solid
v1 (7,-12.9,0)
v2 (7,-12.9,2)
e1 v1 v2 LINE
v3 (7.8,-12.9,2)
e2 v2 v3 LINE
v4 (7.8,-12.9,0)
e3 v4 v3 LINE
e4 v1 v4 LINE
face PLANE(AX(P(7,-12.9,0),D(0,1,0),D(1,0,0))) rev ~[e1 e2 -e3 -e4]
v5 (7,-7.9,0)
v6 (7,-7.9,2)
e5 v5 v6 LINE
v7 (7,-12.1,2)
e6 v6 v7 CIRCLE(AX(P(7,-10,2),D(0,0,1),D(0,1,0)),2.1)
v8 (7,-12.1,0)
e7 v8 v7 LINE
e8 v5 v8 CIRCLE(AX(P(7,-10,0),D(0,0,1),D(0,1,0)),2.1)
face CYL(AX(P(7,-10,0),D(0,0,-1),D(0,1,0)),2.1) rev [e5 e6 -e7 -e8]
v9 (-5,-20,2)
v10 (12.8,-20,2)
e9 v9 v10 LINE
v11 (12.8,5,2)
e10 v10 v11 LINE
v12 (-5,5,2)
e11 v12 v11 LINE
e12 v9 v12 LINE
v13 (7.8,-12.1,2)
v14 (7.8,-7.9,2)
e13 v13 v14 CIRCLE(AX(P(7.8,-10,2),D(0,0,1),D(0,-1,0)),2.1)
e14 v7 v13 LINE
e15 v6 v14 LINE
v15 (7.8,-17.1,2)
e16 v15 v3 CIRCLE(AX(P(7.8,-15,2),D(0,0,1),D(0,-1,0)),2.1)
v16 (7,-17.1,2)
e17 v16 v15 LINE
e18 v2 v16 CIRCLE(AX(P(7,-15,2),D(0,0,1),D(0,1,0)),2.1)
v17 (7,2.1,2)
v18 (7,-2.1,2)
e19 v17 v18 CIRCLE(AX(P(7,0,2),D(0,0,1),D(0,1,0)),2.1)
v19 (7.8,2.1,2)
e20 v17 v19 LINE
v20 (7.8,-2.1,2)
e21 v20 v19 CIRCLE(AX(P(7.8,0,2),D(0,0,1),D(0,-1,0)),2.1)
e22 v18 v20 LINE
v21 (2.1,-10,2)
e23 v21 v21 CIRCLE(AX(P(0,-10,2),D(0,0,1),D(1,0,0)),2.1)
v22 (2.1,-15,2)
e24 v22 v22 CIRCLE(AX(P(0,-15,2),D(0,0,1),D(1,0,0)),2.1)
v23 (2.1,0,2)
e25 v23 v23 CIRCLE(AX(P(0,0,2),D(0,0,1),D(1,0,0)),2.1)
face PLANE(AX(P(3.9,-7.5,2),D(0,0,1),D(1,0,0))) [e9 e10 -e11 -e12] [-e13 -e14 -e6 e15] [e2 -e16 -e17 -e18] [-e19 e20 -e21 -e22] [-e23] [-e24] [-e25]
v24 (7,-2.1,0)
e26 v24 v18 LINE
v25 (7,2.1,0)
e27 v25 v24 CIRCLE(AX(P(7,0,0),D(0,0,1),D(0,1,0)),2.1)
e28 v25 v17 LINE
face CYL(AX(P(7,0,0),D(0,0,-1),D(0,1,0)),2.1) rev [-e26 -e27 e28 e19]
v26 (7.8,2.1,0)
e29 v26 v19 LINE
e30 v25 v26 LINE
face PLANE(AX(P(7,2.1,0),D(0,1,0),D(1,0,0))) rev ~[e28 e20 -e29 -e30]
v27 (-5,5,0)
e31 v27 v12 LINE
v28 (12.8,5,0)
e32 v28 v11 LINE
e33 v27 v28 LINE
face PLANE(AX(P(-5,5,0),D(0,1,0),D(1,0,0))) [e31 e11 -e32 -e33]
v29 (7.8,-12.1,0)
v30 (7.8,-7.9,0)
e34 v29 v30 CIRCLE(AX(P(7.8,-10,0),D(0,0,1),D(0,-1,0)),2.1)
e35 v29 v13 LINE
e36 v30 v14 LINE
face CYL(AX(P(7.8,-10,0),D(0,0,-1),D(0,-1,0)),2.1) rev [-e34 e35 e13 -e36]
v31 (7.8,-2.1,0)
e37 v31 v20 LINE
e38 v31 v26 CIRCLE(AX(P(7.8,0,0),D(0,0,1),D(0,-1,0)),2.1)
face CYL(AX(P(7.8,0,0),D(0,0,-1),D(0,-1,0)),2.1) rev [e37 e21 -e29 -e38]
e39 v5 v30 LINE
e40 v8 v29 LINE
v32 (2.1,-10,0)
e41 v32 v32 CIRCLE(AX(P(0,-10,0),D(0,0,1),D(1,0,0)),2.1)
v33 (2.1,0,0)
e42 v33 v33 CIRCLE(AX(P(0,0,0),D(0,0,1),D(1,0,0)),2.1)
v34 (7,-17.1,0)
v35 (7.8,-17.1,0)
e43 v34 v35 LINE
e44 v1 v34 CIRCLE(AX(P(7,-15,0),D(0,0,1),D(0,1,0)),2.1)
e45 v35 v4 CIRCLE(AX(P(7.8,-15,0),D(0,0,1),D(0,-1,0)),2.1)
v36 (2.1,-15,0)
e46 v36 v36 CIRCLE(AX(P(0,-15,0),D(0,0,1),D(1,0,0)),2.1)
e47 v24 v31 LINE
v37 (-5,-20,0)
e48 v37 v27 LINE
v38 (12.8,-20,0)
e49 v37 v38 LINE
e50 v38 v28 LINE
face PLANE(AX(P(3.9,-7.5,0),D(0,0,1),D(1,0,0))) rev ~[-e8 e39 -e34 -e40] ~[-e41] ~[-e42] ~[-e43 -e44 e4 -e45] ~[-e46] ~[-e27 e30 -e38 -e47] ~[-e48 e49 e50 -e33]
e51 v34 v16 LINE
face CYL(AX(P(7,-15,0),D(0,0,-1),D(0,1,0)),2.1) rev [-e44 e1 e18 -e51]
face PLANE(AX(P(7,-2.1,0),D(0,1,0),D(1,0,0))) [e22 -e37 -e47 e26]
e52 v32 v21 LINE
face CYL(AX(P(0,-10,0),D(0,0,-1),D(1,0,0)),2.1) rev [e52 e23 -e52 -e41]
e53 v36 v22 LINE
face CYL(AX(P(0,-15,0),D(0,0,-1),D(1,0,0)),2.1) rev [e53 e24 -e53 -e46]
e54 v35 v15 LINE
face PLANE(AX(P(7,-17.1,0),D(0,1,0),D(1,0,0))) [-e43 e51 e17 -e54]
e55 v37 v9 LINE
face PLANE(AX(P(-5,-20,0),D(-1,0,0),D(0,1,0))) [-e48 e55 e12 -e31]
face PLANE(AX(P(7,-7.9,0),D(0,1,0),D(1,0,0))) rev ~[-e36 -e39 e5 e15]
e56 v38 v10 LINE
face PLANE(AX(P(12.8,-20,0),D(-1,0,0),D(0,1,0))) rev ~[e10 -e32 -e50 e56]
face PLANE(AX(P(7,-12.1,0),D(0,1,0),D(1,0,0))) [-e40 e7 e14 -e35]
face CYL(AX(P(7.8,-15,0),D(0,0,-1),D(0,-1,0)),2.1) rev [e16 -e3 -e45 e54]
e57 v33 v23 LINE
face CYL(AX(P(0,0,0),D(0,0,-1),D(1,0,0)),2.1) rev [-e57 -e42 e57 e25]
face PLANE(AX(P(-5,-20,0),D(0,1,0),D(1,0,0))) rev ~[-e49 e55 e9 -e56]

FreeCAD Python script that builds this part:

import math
import FreeCAD as App
import Part
import Sketcher
from FreeCAD import Vector


def add_polygon(sketch, points):
    """Adds a closed chain of lines whose ends are joined by coincident constraints."""
    first, n = sketch.GeometryCount, len(points)
    for a, b in zip(points, points[1:] + points[:1]):
        sketch.addGeometry(Part.LineSegment(App.Vector(*a, 0), App.Vector(*b, 0)), False)
    for i in range(n):
        sketch.addConstraint(Sketcher.Constraint("Coincident", first + i, 2, first + (i + 1) % n, 1))

doc = App.newDocument("Part")
params = doc.addObject("Spreadsheet::Sheet", "Params")
for row, (alias, value) in enumerate([
    ("sketch1_diameter", "4.2 mm"),
    ("sketch1_height", "25 mm"),
    ("sketch1_width", "17.8 mm"),
    ("sketch1_width2", "0.8 mm"),
    ("pad1_length", "2 mm"),
], start=1):
    params.set(f"A{row}", alias)
    params.set(f"B{row}", "=" + value)
    params.setAlias(f"B{row}", alias)

body = doc.addObject("PartDesign::Body", "Body")

sketch1 = doc.addObject("Sketcher::SketchObject", "Sketch")
body.addObject(sketch1)
sketch1.AttachmentSupport = (doc.XY_Plane, [""])
sketch1.MapMode = "FlatFace"
add_polygon(sketch1, [(-5, 5), (-5, -20), (12.8, -20), (12.8, 5)])
sketch1.addGeometry(Part.Circle(Vector(0, -15, 0), Vector(0, 0, 1), 2.1), False)
sketch1.addGeometry(Part.Circle(Vector(0, -10, 0), Vector(0, 0, 1), 2.1), False)
sketch1.addGeometry(Part.ArcOfCircle(Part.Circle(Vector(7, -15, 0), Vector(0, 0, 1), 2.1), math.radians(90), math.radians(270)), False)
sketch1.addGeometry(Part.LineSegment(Vector(7, -12.9, 0), Vector(7.8, -12.9, 0)), False)
sketch1.addGeometry(Part.ArcOfCircle(Part.Circle(Vector(7.8, -15, 0), Vector(0, 0, 1), 2.1), math.radians(-90), math.radians(90)), False)
sketch1.addGeometry(Part.LineSegment(Vector(7.8, -17.1, 0), Vector(7, -17.1, 0)), False)
sketch1.addGeometry(Part.ArcOfCircle(Part.Circle(Vector(7, -10, 0), Vector(0, 0, 1), 2.1), math.radians(90), math.radians(270)), False)
sketch1.addGeometry(Part.LineSegment(Vector(7, -7.9, 0), Vector(7.8, -7.9, 0)), False)
sketch1.addGeometry(Part.ArcOfCircle(Part.Circle(Vector(7.8, -10, 0), Vector(0, 0, 1), 2.1), math.radians(-90), math.radians(90)), False)
sketch1.addGeometry(Part.LineSegment(Vector(7.8, -12.1, 0), Vector(7, -12.1, 0)), False)
sketch1.addGeometry(Part.Circle(Vector(0, 0, 0), Vector(0, 0, 1), 2.1), False)
sketch1.addGeometry(Part.ArcOfCircle(Part.Circle(Vector(7, 0, 0), Vector(0, 0, 1), 2.1), math.radians(90), math.radians(270)), False)
sketch1.addGeometry(Part.LineSegment(Vector(7, 2.1, 0), Vector(7.8, 2.1, 0)), False)
sketch1.addGeometry(Part.ArcOfCircle(Part.Circle(Vector(7.8, 0, 0), Vector(0, 0, 1), 2.1), math.radians(-90), math.radians(90)), False)
sketch1.addGeometry(Part.LineSegment(Vector(7.8, -2.1, 0), Vector(7, -2.1, 0)), False)
sketch1.addConstraint([
    Sketcher.Constraint("Tangent", 6, 1, 7, 1),
    Sketcher.Constraint("Tangent", 7, 2, 8, 2),
    Sketcher.Constraint("Tangent", 8, 1, 9, 1),
    Sketcher.Constraint("Tangent", 9, 2, 6, 2),
    Sketcher.Constraint("Tangent", 10, 1, 11, 1),
    Sketcher.Constraint("Tangent", 11, 2, 12, 2),
    Sketcher.Constraint("Tangent", 12, 1, 13, 1),
    Sketcher.Constraint("Tangent", 13, 2, 10, 2),
    Sketcher.Constraint("Tangent", 15, 1, 16, 1),
    Sketcher.Constraint("Tangent", 16, 2, 17, 2),
    Sketcher.Constraint("Tangent", 17, 1, 18, 1),
    Sketcher.Constraint("Tangent", 18, 2, 15, 2),
    Sketcher.Constraint("Vertical", 0),
    Sketcher.Constraint("Horizontal", 1),
    Sketcher.Constraint("Vertical", 2),
    Sketcher.Constraint("Horizontal", 3),
    Sketcher.Constraint("Horizontal", 7),
    Sketcher.Constraint("Horizontal", 9),
    Sketcher.Constraint("Horizontal", 11),
    Sketcher.Constraint("Horizontal", 13),
    Sketcher.Constraint("Horizontal", 16),
    Sketcher.Constraint("Horizontal", 18),
    Sketcher.Constraint("Coincident", 14, 3, -1, 1),
    Sketcher.Constraint("Equal", 4, 5),
    Sketcher.Constraint("Equal", 5, 6),
    Sketcher.Constraint("Equal", 8, 10),
    Sketcher.Constraint("Equal", 12, 14),
    Sketcher.Constraint("Equal", 14, 15),
    Sketcher.Constraint("PointOnObject", 4, 3, -2),
    Sketcher.Constraint("PointOnObject", 5, 3, -2),
    Sketcher.Constraint("PointOnObject", 15, 3, -1),
    Sketcher.Constraint("Horizontal", 4, 3, 6, 3),
    Sketcher.Constraint("Horizontal", 5, 3, 10, 3),
    Sketcher.Constraint("Vertical", 6, 3, 10, 3),
    Sketcher.Constraint("Vertical", 8, 3, 12, 3),
    Sketcher.Constraint("Vertical", 10, 3, 15, 3),
    Sketcher.Constraint("Vertical", 12, 3, 17, 3),
    Sketcher.Constraint("Diameter", 4, 4.2),
    Sketcher.Constraint("DistanceY", 0, 2, 0, 1, 25.0),
    Sketcher.Constraint("DistanceX", 1, 1, 1, 2, 17.8),
    Sketcher.Constraint("DistanceX", 7, 1, 7, 2, 0.8),
    Sketcher.Constraint("DistanceY", 4, 3, -1, 1, 15.0),
    Sketcher.Constraint("DistanceY", 5, 3, -1, 1, 10.0),
    Sketcher.Constraint("DistanceX", -1, 1, 6, 3, 7.0),
    Sketcher.Constraint("DistanceX", 0, 2, -1, 1, 5.0),
    Sketcher.Constraint("DistanceY", 0, 2, -1, 1, 20.0),
])
sketch1.setExpression("Constraints[41]", "Params.sketch1_diameter")
sketch1.setExpression("Constraints[42]", "Params.sketch1_height")
sketch1.setExpression("Constraints[43]", "Params.sketch1_width")
sketch1.setExpression("Constraints[44]", "Params.sketch1_width2")
pad1 = doc.addObject("PartDesign::Pad", "Pad")
body.addObject(pad1)
pad1.Profile = sketch1
pad1.setExpression("Length", "Params.pad1_length")

doc.recompute()
